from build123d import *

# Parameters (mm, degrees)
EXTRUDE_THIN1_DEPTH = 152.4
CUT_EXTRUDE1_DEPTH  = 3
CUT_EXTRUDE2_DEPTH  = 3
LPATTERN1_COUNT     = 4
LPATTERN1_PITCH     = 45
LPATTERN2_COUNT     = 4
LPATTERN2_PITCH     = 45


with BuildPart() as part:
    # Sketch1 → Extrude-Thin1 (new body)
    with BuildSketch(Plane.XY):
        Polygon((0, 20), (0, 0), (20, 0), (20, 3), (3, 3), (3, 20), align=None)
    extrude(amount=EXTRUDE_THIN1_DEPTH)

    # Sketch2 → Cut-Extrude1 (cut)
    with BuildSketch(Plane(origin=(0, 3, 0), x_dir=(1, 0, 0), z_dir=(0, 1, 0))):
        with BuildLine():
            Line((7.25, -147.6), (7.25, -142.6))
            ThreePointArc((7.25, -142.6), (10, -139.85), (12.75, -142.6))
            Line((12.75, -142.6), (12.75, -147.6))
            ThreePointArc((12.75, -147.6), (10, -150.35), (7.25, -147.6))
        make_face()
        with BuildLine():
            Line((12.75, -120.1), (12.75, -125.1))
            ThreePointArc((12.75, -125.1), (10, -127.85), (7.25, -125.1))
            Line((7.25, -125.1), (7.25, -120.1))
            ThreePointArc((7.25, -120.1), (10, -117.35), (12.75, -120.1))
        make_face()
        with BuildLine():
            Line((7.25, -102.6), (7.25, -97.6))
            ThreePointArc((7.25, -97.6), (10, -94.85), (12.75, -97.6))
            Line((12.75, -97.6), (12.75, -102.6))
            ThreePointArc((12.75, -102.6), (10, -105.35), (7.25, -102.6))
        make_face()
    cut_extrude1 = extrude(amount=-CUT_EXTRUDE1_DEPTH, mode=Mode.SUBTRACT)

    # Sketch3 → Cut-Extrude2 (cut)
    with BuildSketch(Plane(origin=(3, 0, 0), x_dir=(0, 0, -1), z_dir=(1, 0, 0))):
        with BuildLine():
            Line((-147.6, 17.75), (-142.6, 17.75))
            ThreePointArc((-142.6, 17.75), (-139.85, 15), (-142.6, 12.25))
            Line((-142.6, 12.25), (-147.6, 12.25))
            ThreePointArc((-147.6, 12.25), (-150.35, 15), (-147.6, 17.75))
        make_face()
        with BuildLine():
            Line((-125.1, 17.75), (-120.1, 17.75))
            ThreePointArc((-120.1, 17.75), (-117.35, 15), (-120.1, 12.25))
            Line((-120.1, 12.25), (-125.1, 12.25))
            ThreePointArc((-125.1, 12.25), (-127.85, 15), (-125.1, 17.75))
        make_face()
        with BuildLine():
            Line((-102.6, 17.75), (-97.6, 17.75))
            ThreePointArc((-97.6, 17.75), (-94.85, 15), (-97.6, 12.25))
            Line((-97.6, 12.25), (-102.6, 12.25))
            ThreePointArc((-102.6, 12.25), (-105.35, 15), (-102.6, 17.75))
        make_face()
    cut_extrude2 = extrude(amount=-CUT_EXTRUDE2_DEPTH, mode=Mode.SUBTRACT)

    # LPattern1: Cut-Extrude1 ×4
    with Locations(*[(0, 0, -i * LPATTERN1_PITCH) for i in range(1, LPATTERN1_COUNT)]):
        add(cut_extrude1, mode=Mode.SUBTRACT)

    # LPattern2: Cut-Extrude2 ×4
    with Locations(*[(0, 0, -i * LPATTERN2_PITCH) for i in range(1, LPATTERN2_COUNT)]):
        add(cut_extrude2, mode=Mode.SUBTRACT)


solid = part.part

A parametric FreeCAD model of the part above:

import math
import FreeCAD as App
import Part
import Sketcher

V = App.Vector

doc = App.newDocument("Part")
params = doc.addObject("Spreadsheet::Sheet", "Params")
for row, (alias, value) in enumerate([
    ("sketch1_width", "20 mm"),
    ("sketch1_width2", "17 mm"),
    ("pad1_length", "152.4 mm"),
    ("sketch2_height", "5 mm"),
    ("sketch2_radius", "2.75 mm"),
    ("pocket1_length", "3 mm"),
    ("sketch3_height", "5 mm"),
    ("sketch3_radius", "2.75 mm"),
    ("pocket2_length", "3 mm"),
    ("linearpattern_pitch", "45 mm"),
    ("linearpattern2_pitch", "45 mm"),
], start=1):
    params.set(f"A{row}", alias)
    params.set(f"B{row}", "=" + value)
    params.setAlias(f"B{row}", alias)

body = doc.addObject("PartDesign::Body", "Body")

sketch1 = body.newObject("Sketcher::SketchObject", "Sketch")
sketch1.AttachmentSupport = (doc.getObject("XY_Plane"), [""])
sketch1.MapMode = "FlatFace"
sketch1.addGeometry([
    Part.LineSegment(V(0, 20, 0), V(0, 0, 0)),
    Part.LineSegment(V(0, 0, 0), V(20, 0, 0)),
    Part.LineSegment(V(20, 0, 0), V(20, 3, 0)),
    Part.LineSegment(V(20, 3, 0), V(3, 3, 0)),
    Part.LineSegment(V(3, 3, 0), V(3, 20, 0)),
    Part.LineSegment(V(3, 20, 0), V(0, 20, 0)),
], False)
sketch1.addConstraint([
    Sketcher.Constraint("Coincident", 0, 2, 1, 1),
    Sketcher.Constraint("Coincident", 1, 2, 2, 1),
    Sketcher.Constraint("Coincident", 2, 2, 3, 1),
    Sketcher.Constraint("Coincident", 3, 2, 4, 1),
    Sketcher.Constraint("Coincident", 4, 2, 5, 1),
    Sketcher.Constraint("Coincident", 5, 2, 0, 1),
    Sketcher.Constraint("Vertical", 0),
    Sketcher.Constraint("Horizontal", 1),
    Sketcher.Constraint("Vertical", 2),
    Sketcher.Constraint("Horizontal", 3),
    Sketcher.Constraint("Vertical", 4),
    Sketcher.Constraint("Horizontal", 5),
    Sketcher.Constraint("Coincident", 0, 2, -1, 1),
    Sketcher.Constraint("Equal", 1, 0),
    Sketcher.Constraint("Equal", 5, 2),
    Sketcher.Constraint("DistanceX", 1, 1, 1, 2, 20.0),
    Sketcher.Constraint("DistanceX", 3, 2, 3, 1, 17.0),
])
sketch1.setExpression("Constraints[15]", "Params.sketch1_width")
sketch1.setExpression("Constraints[16]", "Params.sketch1_width2")
pad1 = body.newObject("PartDesign::Pad", "Pad")
pad1.Profile = sketch1
pad1.setExpression("Length", "Params.pad1_length")

sketch2 = body.newObject("Sketcher::SketchObject", "Sketch001")
sketch2.AttachmentSupport = (doc.getObject("XZ_Plane"), [""])
sketch2.MapMode = "FlatFace"
sketch2.AttachmentOffset = App.Placement(V(0, 0, -3), App.Rotation())
sketch2.addGeometry([
    Part.LineSegment(V(7.2, 142.6, 0), V(7.2, 147.6, 0)),
    Part.ArcOfCircle(Part.Circle(V(10, 147.6, 0), V(0, 0, 1), 2.8), math.radians(0), math.radians(180)),
    Part.LineSegment(V(12.8, 147.6, 0), V(12.8, 142.6, 0)),
    Part.ArcOfCircle(Part.Circle(V(10, 142.6, 0), V(0, 0, 1), 2.8), math.radians(180), math.radians(360)),
    Part.LineSegment(V(12.8, 125.1, 0), V(12.8, 120.1, 0)),
    Part.ArcOfCircle(Part.Circle(V(10, 120.1, 0), V(0, 0, 1), 2.8), math.radians(180), math.radians(360)),
    Part.LineSegment(V(7.2, 120.1, 0), V(7.2, 125.1, 0)),
    Part.ArcOfCircle(Part.Circle(V(10, 125.1, 0), V(0, 0, 1), 2.8), math.radians(0), math.radians(180)),
    Part.LineSegment(V(7.2, 97.6, 0), V(7.2, 102.6, 0)),
    Part.ArcOfCircle(Part.Circle(V(10, 102.6, 0), V(0, 0, 1), 2.8), math.radians(0), math.radians(180)),
    Part.LineSegment(V(12.8, 102.6, 0), V(12.8, 97.6, 0)),
    Part.ArcOfCircle(Part.Circle(V(10, 97.6, 0), V(0, 0, 1), 2.8), math.radians(180), math.radians(360)),
], False)
sketch2.addConstraint([
    Sketcher.Constraint("Tangent", 0, 2, 1, 2),
    Sketcher.Constraint("Tangent", 1, 1, 2, 1),
    Sketcher.Constraint("Tangent", 2, 2, 3, 2),
    Sketcher.Constraint("Tangent", 3, 1, 0, 1),
    Sketcher.Constraint("Tangent", 4, 2, 5, 2),
    Sketcher.Constraint("Tangent", 5, 1, 6, 1),
    Sketcher.Constraint("Tangent", 6, 2, 7, 2),
    Sketcher.Constraint("Tangent", 7, 1, 4, 1),
    Sketcher.Constraint("Tangent", 8, 2, 9, 2),
    Sketcher.Constraint("Tangent", 9, 1, 10, 1),
    Sketcher.Constraint("Tangent", 10, 2, 11, 2),
    Sketcher.Constraint("Tangent", 11, 1, 8, 1),
    Sketcher.Constraint("Vertical", 0),
    Sketcher.Constraint("Vertical", 2),
    Sketcher.Constraint("Vertical", 4),
    Sketcher.Constraint("Vertical", 6),
    Sketcher.Constraint("Vertical", 8),
    Sketcher.Constraint("Vertical", 10),
    Sketcher.Constraint("Equal", 3, 5),
    Sketcher.Constraint("Equal", 7, 9),
    Sketcher.Constraint("Vertical", 3, 3, 5, 3),
    Sketcher.Constraint("Vertical", 7, 3, 9, 3),
    Sketcher.Constraint("Equal", 2, 4),
    Sketcher.Constraint("Equal", 6, 8),
    Sketcher.Constraint("DistanceY", 0, 1, 0, 2, 5.0),
    Sketcher.Constraint("Radius", 1, 2.75),
    Sketcher.Constraint("DistanceX", -1, 1, 1, 3, 10.0),
    Sketcher.Constraint("DistanceY", 9, 3, 3, 3, 40.0),
    Sketcher.Constraint("DistanceY", -1, 1, 1, 3, 147.6),
    Sketcher.Constraint("DistanceY", -1, 1, 5, 3, 120.1),
])
sketch2.setExpression("Constraints[24]", "Params.sketch2_height")
sketch2.setExpression("Constraints[25]", "Params.sketch2_radius")
pocket1 = body.newObject("PartDesign::Pocket", "Pocket")
pocket1.Profile = sketch2
pocket1.setExpression("Length", "Params.pocket1_length")
pocket1.Reversed = True

sketch3 = body.newObject("Sketcher::SketchObject", "Sketch002")
sketch3.AttachmentSupport = (doc.getObject("YZ_Plane"), [""])
sketch3.MapMode = "FlatFace"
sketch3.AttachmentOffset = App.Placement(V(0, 0, 3), App.Rotation())
sketch3.addGeometry([
    Part.LineSegment(V(17.8, 142.6, 0), V(17.8, 147.6, 0)),
    Part.ArcOfCircle(Part.Circle(V(15, 147.6, 0), V(0, 0, 1), 2.8), math.radians(0), math.radians(180)),
    Part.LineSegment(V(12.2, 147.6, 0), V(12.2, 142.6, 0)),
    Part.ArcOfCircle(Part.Circle(V(15, 142.6, 0), V(0, 0, 1), 2.8), math.radians(180), math.radians(360)),
    Part.LineSegment(V(17.8, 120.1, 0), V(17.8, 125.1, 0)),
    Part.ArcOfCircle(Part.Circle(V(15, 125.1, 0), V(0, 0, 1), 2.8), math.radians(0), math.radians(180)),
    Part.LineSegment(V(12.2, 125.1, 0), V(12.2, 120.1, 0)),
    Part.ArcOfCircle(Part.Circle(V(15, 120.1, 0), V(0, 0, 1), 2.8), math.radians(180), math.radians(360)),
    Part.LineSegment(V(17.8, 97.6, 0), V(17.8, 102.6, 0)),
    Part.ArcOfCircle(Part.Circle(V(15, 102.6, 0), V(0, 0, 1), 2.8), math.radians(0), math.radians(180)),
    Part.LineSegment(V(12.2, 102.6, 0), V(12.2, 97.6, 0)),
    Part.ArcOfCircle(Part.Circle(V(15, 97.6, 0), V(0, 0, 1), 2.8), math.radians(180), math.radians(360)),
], False)
sketch3.addConstraint([
    Sketcher.Constraint("Tangent", 0, 2, 1, 1),
    Sketcher.Constraint("Tangent", 1, 2, 2, 1),
    Sketcher.Constraint("Tangent", 2, 2, 3, 1),
    Sketcher.Constraint("Tangent", 3, 2, 0, 1),
    Sketcher.Constraint("Tangent", 4, 2, 5, 1),
    Sketcher.Constraint("Tangent", 5, 2, 6, 1),
    Sketcher.Constraint("Tangent", 6, 2, 7, 1),
    Sketcher.Constraint("Tangent", 7, 2, 4, 1),
    Sketcher.Constraint("Tangent", 8, 2, 9, 1),
    Sketcher.Constraint("Tangent", 9, 2, 10, 1),
    Sketcher.Constraint("Tangent", 10, 2, 11, 1),
    Sketcher.Constraint("Tangent", 11, 2, 8, 1),
    Sketcher.Constraint("Vertical", 0),
    Sketcher.Constraint("Vertical", 2),
    Sketcher.Constraint("Vertical", 4),
    Sketcher.Constraint("Vertical", 6),
    Sketcher.Constraint("Vertical", 8),
    Sketcher.Constraint("Vertical", 10),
    Sketcher.Constraint("Equal", 3, 5),
    Sketcher.Constraint("Equal", 7, 9),
    Sketcher.Constraint("Vertical", 3, 3, 5, 3),
    Sketcher.Constraint("Vertical", 7, 3, 9, 3),
    Sketcher.Constraint("Equal", 2, 4),
    Sketcher.Constraint("Equal", 6, 8),
    Sketcher.Constraint("DistanceY", 0, 1, 0, 2, 5.0),
    Sketcher.Constraint("Radius", 1, 2.75),
    Sketcher.Constraint("DistanceX", -1, 1, 1, 3, 15.0),
    Sketcher.Constraint("DistanceY", 9, 3, 3, 3, 40.0),
    Sketcher.Constraint("DistanceY", -1, 1, 1, 3, 147.6),
    Sketcher.Constraint("DistanceY", -1, 1, 5, 3, 125.1),
])
sketch3.setExpression("Constraints[24]", "Params.sketch3_height")
sketch3.setExpression("Constraints[25]", "Params.sketch3_radius")
pocket2 = body.newObject("PartDesign::Pocket", "Pocket001")
pocket2.Profile = sketch3
pocket2.setExpression("Length", "Params.pocket2_length")
doc.recompute()

linearpattern = body.newObject("PartDesign::LinearPattern", "LinearPattern")
linearpattern.Originals = [pocket1]
linearpattern.Direction = (doc.getObject("Z_Axis"), [""])
linearpattern.Mode = "offset"
linearpattern.setExpression("Offset", "Params.linearpattern_pitch")
linearpattern.Occurrences = 4
linearpattern.Reversed = True
body.Tip = linearpattern
doc.recompute()

linearpattern2 = body.newObject("PartDesign::LinearPattern", "LinearPattern001")
linearpattern2.Originals = [pocket2]
linearpattern2.Direction = (doc.getObject("Z_Axis"), [""])
linearpattern2.Mode = "offset"
linearpattern2.setExpression("Offset", "Params.linearpattern2_pitch")
linearpattern2.Occurrences = 4
linearpattern2.Reversed = True
body.Tip = linearpattern2

doc.recompute()
